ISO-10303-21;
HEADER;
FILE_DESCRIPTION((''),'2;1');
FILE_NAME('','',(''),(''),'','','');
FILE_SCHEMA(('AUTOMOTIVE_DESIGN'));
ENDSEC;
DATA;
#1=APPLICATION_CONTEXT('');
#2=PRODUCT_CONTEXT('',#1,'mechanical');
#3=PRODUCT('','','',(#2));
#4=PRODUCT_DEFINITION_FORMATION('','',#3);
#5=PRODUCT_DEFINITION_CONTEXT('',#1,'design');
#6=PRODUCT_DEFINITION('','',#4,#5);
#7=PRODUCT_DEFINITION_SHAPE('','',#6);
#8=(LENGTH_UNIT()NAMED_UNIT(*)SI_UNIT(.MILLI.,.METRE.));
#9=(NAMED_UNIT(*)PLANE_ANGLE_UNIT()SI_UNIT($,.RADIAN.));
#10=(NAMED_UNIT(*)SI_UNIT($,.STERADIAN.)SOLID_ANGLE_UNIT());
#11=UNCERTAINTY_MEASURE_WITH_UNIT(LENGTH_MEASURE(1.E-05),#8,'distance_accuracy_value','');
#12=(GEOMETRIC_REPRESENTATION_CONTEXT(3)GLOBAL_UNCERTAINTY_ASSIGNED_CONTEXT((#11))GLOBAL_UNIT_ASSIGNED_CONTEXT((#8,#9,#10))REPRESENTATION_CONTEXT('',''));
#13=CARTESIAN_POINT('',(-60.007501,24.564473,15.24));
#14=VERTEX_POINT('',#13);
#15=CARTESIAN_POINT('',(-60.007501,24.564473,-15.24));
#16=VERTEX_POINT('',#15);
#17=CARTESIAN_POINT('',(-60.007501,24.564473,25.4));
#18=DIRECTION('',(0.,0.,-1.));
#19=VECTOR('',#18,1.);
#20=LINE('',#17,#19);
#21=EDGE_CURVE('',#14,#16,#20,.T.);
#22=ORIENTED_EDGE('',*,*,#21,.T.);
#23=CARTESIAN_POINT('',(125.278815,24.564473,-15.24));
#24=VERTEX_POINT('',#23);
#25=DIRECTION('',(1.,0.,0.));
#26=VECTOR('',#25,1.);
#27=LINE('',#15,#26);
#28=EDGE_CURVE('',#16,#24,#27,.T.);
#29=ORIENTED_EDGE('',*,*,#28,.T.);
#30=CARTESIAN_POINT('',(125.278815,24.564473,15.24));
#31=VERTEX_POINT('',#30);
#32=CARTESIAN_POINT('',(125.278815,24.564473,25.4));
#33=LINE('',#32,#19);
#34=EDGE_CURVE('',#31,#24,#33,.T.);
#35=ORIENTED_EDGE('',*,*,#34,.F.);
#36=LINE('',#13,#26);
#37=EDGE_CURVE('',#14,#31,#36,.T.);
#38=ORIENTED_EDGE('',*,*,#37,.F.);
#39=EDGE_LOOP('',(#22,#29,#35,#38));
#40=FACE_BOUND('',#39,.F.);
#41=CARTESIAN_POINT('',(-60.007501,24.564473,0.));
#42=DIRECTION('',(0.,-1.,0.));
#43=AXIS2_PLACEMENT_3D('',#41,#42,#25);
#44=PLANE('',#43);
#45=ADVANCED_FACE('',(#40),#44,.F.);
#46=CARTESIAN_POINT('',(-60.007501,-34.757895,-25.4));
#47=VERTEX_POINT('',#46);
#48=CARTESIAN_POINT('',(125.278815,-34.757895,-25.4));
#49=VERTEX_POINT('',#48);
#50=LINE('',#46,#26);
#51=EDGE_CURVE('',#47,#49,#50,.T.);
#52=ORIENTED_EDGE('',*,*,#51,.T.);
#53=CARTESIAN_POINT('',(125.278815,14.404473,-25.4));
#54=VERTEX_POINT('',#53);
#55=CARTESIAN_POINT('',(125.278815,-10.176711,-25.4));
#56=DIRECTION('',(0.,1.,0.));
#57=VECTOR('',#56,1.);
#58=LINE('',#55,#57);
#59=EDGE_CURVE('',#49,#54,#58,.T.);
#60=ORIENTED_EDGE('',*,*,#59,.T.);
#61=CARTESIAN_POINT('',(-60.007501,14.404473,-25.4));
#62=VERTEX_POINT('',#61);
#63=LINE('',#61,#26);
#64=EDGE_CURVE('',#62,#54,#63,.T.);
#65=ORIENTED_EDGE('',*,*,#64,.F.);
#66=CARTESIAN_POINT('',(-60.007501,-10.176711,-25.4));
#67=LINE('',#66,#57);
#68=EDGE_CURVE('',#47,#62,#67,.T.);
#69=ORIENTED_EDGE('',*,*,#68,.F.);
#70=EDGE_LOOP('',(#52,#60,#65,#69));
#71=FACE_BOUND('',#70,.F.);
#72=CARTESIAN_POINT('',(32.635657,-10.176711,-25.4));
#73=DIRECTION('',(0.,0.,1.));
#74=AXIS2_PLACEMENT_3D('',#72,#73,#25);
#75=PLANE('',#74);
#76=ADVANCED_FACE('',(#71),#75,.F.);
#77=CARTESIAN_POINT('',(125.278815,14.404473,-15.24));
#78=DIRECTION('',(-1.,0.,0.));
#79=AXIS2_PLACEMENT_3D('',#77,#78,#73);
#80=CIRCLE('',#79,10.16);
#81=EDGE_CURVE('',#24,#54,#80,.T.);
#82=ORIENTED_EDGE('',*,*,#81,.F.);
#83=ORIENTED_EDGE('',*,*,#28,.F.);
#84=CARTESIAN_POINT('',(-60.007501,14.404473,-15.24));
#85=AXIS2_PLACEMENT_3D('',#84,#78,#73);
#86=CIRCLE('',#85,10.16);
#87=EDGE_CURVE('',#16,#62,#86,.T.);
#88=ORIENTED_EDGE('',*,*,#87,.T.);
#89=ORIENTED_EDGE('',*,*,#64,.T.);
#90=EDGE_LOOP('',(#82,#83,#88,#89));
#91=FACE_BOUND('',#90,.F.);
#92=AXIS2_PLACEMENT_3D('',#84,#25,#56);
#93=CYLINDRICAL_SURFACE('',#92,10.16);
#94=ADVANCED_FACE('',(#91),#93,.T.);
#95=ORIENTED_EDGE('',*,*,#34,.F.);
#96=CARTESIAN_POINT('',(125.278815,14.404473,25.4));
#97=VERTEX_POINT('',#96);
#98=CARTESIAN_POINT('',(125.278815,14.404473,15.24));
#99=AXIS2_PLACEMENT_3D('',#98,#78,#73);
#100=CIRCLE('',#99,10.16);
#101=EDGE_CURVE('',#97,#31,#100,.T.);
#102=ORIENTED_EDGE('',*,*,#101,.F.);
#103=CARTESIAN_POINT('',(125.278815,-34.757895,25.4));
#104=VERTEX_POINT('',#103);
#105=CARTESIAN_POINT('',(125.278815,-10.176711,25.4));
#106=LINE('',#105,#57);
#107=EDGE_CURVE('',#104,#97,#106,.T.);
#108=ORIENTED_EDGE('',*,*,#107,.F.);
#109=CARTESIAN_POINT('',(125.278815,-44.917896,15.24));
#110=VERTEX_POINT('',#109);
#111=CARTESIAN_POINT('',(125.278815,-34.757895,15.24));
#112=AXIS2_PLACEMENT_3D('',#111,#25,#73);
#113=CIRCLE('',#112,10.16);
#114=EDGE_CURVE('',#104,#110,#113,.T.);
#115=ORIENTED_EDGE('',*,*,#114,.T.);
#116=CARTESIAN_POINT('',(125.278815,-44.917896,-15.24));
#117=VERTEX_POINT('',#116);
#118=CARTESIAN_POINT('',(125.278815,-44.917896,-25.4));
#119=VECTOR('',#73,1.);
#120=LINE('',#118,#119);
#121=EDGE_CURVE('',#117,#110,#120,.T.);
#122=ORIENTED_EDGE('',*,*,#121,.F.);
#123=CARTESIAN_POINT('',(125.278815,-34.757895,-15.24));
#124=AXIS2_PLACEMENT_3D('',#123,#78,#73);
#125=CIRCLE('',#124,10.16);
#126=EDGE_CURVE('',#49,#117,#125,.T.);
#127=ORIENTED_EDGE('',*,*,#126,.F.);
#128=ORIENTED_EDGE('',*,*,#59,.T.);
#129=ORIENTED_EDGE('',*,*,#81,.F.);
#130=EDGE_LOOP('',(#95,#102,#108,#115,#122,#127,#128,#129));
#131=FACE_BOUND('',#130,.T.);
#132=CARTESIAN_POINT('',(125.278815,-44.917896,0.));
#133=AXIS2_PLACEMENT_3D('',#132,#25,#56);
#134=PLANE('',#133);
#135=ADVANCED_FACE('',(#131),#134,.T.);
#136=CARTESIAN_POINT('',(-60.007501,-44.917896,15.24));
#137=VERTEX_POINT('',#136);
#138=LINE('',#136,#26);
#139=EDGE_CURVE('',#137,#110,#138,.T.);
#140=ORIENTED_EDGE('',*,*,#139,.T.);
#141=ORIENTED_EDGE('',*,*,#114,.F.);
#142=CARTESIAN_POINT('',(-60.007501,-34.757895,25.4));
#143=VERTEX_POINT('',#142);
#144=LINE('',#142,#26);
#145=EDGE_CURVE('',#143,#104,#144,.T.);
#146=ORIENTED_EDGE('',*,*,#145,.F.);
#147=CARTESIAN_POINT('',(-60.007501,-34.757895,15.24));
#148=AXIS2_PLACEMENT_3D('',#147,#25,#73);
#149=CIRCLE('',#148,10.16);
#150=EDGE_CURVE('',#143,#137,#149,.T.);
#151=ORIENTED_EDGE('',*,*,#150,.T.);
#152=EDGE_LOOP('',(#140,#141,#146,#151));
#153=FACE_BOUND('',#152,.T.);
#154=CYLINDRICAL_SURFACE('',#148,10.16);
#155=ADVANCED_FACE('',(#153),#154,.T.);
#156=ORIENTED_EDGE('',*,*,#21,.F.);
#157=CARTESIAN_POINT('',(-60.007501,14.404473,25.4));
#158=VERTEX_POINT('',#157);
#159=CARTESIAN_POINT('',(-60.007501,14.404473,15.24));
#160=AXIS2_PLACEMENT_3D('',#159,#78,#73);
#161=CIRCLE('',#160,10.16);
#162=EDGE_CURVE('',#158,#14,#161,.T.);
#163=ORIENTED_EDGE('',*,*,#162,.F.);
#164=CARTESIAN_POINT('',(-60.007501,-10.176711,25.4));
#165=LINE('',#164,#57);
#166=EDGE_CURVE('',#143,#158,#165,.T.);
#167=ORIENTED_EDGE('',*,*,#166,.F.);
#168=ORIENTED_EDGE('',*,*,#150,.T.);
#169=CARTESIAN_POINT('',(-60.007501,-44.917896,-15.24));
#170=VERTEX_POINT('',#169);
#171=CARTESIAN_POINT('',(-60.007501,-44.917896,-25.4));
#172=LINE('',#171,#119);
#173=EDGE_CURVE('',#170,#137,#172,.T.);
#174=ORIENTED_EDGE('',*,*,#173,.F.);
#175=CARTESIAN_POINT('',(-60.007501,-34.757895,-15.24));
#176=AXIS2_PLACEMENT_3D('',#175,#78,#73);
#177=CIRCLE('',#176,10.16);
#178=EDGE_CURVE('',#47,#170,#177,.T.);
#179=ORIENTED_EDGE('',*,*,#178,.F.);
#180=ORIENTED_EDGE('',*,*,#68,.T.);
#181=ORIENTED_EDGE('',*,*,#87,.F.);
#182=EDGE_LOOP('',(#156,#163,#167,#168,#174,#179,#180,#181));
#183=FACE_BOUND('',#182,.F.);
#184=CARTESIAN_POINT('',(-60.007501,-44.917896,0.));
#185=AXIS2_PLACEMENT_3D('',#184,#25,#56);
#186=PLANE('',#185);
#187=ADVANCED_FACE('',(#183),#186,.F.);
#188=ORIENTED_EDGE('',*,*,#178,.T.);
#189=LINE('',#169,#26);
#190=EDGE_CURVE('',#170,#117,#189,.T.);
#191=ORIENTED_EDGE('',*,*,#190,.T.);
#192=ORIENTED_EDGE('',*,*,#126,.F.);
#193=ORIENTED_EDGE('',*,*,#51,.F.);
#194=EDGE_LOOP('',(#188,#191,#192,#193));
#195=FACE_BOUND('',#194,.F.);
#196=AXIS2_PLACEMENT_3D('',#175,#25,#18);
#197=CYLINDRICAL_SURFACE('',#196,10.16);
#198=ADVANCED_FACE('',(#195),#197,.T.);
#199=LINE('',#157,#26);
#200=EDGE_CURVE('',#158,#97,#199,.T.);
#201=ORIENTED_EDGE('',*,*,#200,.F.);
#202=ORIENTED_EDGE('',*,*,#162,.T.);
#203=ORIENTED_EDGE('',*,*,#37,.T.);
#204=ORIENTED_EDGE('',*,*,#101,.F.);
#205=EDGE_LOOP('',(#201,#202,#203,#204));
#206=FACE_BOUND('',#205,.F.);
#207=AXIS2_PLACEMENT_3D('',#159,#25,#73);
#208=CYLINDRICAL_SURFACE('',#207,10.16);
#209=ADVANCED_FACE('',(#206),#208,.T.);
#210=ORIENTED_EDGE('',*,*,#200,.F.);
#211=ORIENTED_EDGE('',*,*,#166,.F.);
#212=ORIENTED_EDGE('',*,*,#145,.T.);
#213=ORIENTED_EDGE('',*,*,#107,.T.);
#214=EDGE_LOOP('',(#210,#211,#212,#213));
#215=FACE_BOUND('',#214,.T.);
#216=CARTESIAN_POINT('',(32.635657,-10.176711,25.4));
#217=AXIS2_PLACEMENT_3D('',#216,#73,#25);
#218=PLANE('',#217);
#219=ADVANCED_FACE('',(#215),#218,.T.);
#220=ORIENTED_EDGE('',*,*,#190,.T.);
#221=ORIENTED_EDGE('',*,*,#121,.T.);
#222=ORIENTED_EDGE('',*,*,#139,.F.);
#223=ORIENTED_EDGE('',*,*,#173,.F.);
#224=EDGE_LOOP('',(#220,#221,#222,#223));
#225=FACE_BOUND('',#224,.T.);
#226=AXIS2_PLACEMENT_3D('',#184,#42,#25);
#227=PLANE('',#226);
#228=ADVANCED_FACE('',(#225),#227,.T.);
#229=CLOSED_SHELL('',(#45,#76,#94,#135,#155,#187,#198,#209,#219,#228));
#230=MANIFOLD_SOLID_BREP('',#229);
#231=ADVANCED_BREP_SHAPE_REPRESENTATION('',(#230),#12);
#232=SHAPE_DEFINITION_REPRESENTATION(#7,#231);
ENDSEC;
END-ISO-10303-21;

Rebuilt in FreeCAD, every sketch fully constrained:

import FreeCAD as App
import Part
import Sketcher
from FreeCAD import Vector
Q = App.Units.Quantity


def edges_at(feature, points):
    """Names of the edges that pass closest to the given points."""
    edges = feature.Shape.Edges
    near = lambda p: min(range(len(edges)), key=lambda i: edges[i].distToShape(Part.Vertex(*p))[0])
    return sorted({f"Edge{near(p) + 1}" for p in points})

doc = App.newDocument("Part")
params = doc.addObject("Spreadsheet::Sheet", "Params")
for row, (alias, value) in enumerate([
    ("pad1_length", "2 in"),
    ("fillet_radius", "0.4 in"),
], start=1):
    params.set(f"A{row}", alias)
    params.set(f"B{row}", "=" + value)
    params.setAlias(f"B{row}", alias)

body = doc.addObject("PartDesign::Body", "Body")

sketch1 = body.newObject("Sketcher::SketchObject", "Sketch")
sketch1.AttachmentSupport = (doc.getObject("XY_Plane"), [""])
sketch1.MapMode = "FlatFace"
sketch1.addGeometry([
    Part.LineSegment(Vector(-60, 25, 0), Vector(-60, -45, 0)),
    Part.LineSegment(Vector(-60, -45, 0), Vector(125, -45, 0)),
    Part.LineSegment(Vector(125, -45, 0), Vector(125, 25, 0)),
    Part.LineSegment(Vector(125, 25, 0), Vector(-60, 25, 0)),
], False)
sketch1.addConstraint([
    Sketcher.Constraint("Coincident", 0, 2, 1, 1),
    Sketcher.Constraint("Coincident", 1, 2, 2, 1),
    Sketcher.Constraint("Coincident", 2, 2, 3, 1),
    Sketcher.Constraint("Coincident", 3, 2, 0, 1),
    Sketcher.Constraint("Vertical", 0),
    Sketcher.Constraint("Horizontal", 1),
    Sketcher.Constraint("Vertical", 2),
    Sketcher.Constraint("Horizontal", 3),
    Sketcher.Constraint("DistanceX", 0, 2, -1, 1, Q("2.3625001 in")),
    Sketcher.Constraint("DistanceY", 0, 2, 0, 1, 69.482369),
    Sketcher.Constraint("DistanceX", 1, 1, 1, 2, 185.286317),
    Sketcher.Constraint("DistanceY", 0, 2, -1, 1, 44.917896),
])
pad1 = body.newObject("PartDesign::Pad", "Pad")
pad1.Profile = sketch1
pad1.setExpression("Length", "Params.pad1_length")
pad1.Midplane = True
doc.recompute()

fillet = body.newObject("PartDesign::Fillet", "Fillet")
fillet.Base = (pad1, edges_at(pad1, [
    (32.636, -44.918, 25.4),
    (32.636, 24.564, 25.4),
    (32.636, -44.918, -25.4),
    (32.636, 24.564, -25.4),
]))
fillet.setExpression("Radius", "Params.fillet_radius")

doc.recompute()
